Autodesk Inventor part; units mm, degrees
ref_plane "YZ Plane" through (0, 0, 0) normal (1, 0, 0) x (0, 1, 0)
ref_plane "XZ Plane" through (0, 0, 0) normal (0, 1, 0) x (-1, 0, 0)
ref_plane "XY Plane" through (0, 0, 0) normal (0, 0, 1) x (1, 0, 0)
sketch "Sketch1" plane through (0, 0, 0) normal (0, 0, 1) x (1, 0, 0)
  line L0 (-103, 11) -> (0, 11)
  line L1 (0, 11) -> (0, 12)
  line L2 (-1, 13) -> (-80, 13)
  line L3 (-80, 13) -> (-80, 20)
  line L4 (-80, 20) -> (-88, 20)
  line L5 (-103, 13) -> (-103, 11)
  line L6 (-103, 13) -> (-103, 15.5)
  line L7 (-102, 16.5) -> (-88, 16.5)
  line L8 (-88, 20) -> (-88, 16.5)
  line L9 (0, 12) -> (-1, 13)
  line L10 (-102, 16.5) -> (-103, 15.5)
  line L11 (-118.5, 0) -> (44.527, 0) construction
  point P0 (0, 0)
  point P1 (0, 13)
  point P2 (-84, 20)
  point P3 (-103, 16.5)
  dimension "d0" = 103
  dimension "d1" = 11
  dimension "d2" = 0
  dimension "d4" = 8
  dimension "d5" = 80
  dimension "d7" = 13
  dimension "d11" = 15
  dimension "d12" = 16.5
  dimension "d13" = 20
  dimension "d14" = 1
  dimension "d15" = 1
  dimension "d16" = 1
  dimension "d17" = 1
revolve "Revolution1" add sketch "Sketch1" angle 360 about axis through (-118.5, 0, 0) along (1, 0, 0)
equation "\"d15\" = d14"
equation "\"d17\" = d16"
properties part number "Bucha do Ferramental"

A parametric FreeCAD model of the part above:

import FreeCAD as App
import Part
import Sketcher

V = App.Vector
Q = App.Units.Quantity


def add_polygon(sketch, points):
    """Adds a closed chain of lines whose ends are joined by coincident constraints."""
    first, n = sketch.GeometryCount, len(points)
    for a, b in zip(points, points[1:] + points[:1]):
        sketch.addGeometry(Part.LineSegment(App.Vector(*a, 0), App.Vector(*b, 0)), False)
    for i in range(n):
        sketch.addConstraint(Sketcher.Constraint("Coincident", first + i, 2, first + (i + 1) % n, 1))

doc = App.newDocument("Part")
body = doc.addObject("PartDesign::Body", "Body")

# Sketch on XY plane
sketch1 = body.newObject("Sketcher::SketchObject", "Sketch")
sketch1.AttachmentSupport = (doc.getObject("XY_Plane"), [""])
sketch1.MapMode = "FlatFace"
add_polygon(sketch1, [(-103, 15.5), (-103, 11), (0, 11), (0, 12), (-1, 13), (-80, 13), (-80, 20), (-88, 20), (-88, 16.5), (-102, 16.5)])  # lines 0-9
sketch1.addConstraint(Sketcher.Constraint("Vertical", 0))
sketch1.addConstraint(Sketcher.Constraint("Horizontal", 1))
sketch1.addConstraint(Sketcher.Constraint("Vertical", 2))
sketch1.addConstraint(Sketcher.Constraint("Horizontal", 4))
sketch1.addConstraint(Sketcher.Constraint("Vertical", 5))
sketch1.addConstraint(Sketcher.Constraint("Horizontal", 6))
sketch1.addConstraint(Sketcher.Constraint("Vertical", 7))
sketch1.addConstraint(Sketcher.Constraint("Horizontal", 8))
sketch1.addConstraint(Sketcher.Constraint("PointOnObject", 1, 2, -2))
sketch1.addConstraint(Sketcher.Constraint("Perpendicular", 3, 9))
sketch1.addConstraint(Sketcher.Constraint("Equal", 3, 9))
sketch1.addConstraint(Sketcher.Constraint("DistanceX", 1, 1, 1, 2, Q("103 mm")))
sketch1.addConstraint(Sketcher.Constraint("DistanceX", 6, 2, 6, 1, Q("8 mm")))
sketch1.addConstraint(Sketcher.Constraint("DistanceY", 2, 1, 2, 2, Q("1 mm")))
sketch1.addConstraint(Sketcher.Constraint("DistanceY", -1, 1, 0, 2, Q("11 mm")))
sketch1.addConstraint(Sketcher.Constraint("DistanceX", 3, 2, -1, 1, Q("1 mm")))
sketch1.addConstraint(Sketcher.Constraint("DistanceY", -1, 1, 3, 2, Q("13 mm")))
sketch1.addConstraint(Sketcher.Constraint("DistanceX", 4, 2, -1, 1, Q("80 mm")))
sketch1.addConstraint(Sketcher.Constraint("DistanceY", -1, 1, 5, 2, Q("20 mm")))
sketch1.addConstraint(Sketcher.Constraint("DistanceY", -1, 1, 7, 2, Q("16.5 mm")))
revolution = body.newObject("PartDesign::Revolution", "Revolution")
revolution.Profile = sketch1
revolution.ReferenceAxis = (sketch1, ["H_Axis"])
revolution.Angle = 360

doc.recompute()
